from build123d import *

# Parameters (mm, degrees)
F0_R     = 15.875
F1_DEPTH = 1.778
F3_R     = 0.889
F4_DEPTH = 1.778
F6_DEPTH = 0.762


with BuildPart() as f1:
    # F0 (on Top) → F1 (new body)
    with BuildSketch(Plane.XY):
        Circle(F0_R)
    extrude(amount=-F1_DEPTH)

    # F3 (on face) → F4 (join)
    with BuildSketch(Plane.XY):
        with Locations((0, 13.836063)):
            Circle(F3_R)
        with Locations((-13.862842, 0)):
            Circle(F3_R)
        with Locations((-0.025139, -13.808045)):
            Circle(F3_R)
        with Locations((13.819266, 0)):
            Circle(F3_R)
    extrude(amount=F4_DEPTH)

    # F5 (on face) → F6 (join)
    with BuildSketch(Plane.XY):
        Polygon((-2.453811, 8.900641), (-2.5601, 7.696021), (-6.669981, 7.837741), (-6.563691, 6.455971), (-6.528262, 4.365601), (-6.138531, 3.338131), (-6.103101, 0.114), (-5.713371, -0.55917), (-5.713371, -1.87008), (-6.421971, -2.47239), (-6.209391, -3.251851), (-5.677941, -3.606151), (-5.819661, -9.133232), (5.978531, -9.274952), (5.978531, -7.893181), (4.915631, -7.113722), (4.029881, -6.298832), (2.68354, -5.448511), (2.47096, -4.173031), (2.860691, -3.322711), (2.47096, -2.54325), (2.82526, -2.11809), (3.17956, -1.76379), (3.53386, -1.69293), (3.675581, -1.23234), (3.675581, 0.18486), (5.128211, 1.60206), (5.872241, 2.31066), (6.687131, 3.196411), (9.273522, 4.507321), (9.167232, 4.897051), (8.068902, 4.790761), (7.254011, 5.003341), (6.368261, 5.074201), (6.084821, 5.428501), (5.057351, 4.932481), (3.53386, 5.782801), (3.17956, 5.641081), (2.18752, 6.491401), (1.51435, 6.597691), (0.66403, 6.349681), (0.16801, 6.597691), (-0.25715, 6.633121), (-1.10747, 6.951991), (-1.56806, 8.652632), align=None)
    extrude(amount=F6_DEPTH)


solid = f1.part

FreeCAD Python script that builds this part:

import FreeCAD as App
import Part
import Sketcher

V = App.Vector
Q = App.Units.Quantity

doc = App.newDocument("Part")
body = doc.addObject("PartDesign::Body", "Body")

# Sketch on XY plane
sketch1 = doc.addObject("Sketcher::SketchObject", "Sketch")
body.addObject(sketch1)
sketch1.AttachmentSupport = (doc.XY_Plane, [""])
sketch1.MapMode = "FlatFace"
sketch1.addGeometry(Part.Circle(V(0, 0, 0), V(0, 0, 1), 16), False)
sketch1.addConstraint(Sketcher.Constraint("Coincident", 0, 3, -1, 1))
sketch1.addConstraint(Sketcher.Constraint("Diameter", 0, Q("1.25 in")))
pad1 = doc.addObject("PartDesign::Pad", "Pad")
body.addObject(pad1)
pad1.Profile = sketch1
pad1.Length = Q("0.07 in")
pad1.Reversed = True

# Sketch on XY plane
sketch2 = doc.addObject("Sketcher::SketchObject", "Sketch001")
body.addObject(sketch2)
sketch2.AttachmentSupport = (doc.XY_Plane, [""])
sketch2.MapMode = "FlatFace"
sketch2.addGeometry(Part.Circle(V(0, 13.8, 0), V(0, 0, 1), 0.9), False)
sketch2.addGeometry(Part.Circle(V(-13.9, 0, 0), V(0, 0, 1), 0.9), False)
sketch2.addGeometry(Part.Circle(V(0, -13.8, 0), V(0, 0, 1), 0.9), False)
sketch2.addGeometry(Part.Circle(V(13.8, 0, 0), V(0, 0, 1), 0.9), False)
sketch2.addConstraint(Sketcher.Constraint("Equal", 0, 1))
sketch2.addConstraint(Sketcher.Constraint("Equal", 1, 2))
sketch2.addConstraint(Sketcher.Constraint("Equal", 2, 3))
sketch2.addConstraint(Sketcher.Constraint("PointOnObject", 0, 3, -2))
sketch2.addConstraint(Sketcher.Constraint("PointOnObject", 1, 3, -1))
sketch2.addConstraint(Sketcher.Constraint("PointOnObject", 3, 3, -1))
sketch2.addConstraint(Sketcher.Constraint("Diameter", 0, Q("0.07 in")))
sketch2.addConstraint(Sketcher.Constraint("DistanceX", 2, 3, -1, 1, 0.025139))
sketch2.addConstraint(Sketcher.Constraint("DistanceY", -1, 1, 0, 3, 13.836063))
sketch2.addConstraint(Sketcher.Constraint("DistanceX", 1, 3, -1, 1, 13.862842))
sketch2.addConstraint(Sketcher.Constraint("DistanceY", 2, 3, -1, 1, 13.808045))
sketch2.addConstraint(Sketcher.Constraint("DistanceX", -1, 1, 3, 3, 13.819266))
pad2 = doc.addObject("PartDesign::Pad", "Pad001")
body.addObject(pad2)
pad2.Profile = sketch2
pad2.Length = Q("0.07 in")

# Sketch on XY plane
sketch3 = doc.addObject("Sketcher::SketchObject", "Sketch002")
body.addObject(sketch3)
sketch3.AttachmentSupport = (doc.XY_Plane, [""])
sketch3.MapMode = "FlatFace"
sketch3.addGeometry(Part.LineSegment(V(-2.45, 8.9, 0), V(-2.56, 7.7, 0)), False)
sketch3.addGeometry(Part.LineSegment(V(-2.56, 7.7, 0), V(-6.67, 7.84, 0)), False)
sketch3.addGeometry(Part.LineSegment(V(-6.67, 7.84, 0), V(-6.56, 6.46, 0)), False)
sketch3.addGeometry(Part.LineSegment(V(-6.56, 6.46, 0), V(-6.53, 4.37, 0)), False)
sketch3.addGeometry(Part.LineSegment(V(-6.53, 4.37, 0), V(-6.14, 3.34, 0)), False)
sketch3.addGeometry(Part.LineSegment(V(-6.14, 3.34, 0), V(-6.1, 0.11, 0)), False)
sketch3.addGeometry(Part.LineSegment(V(-6.1, 0.11, 0), V(-5.71, -0.56, 0)), False)
sketch3.addGeometry(Part.LineSegment(V(-5.71, -0.56, 0), V(-5.71, -1.87, 0)), False)
sketch3.addGeometry(Part.LineSegment(V(-5.71, -1.87, 0), V(-6.42, -2.47, 0)), False)
sketch3.addGeometry(Part.LineSegment(V(-6.42, -2.47, 0), V(-6.21, -3.25, 0)), False)
sketch3.addGeometry(Part.LineSegment(V(-6.21, -3.25, 0), V(-5.68, -3.61, 0)), False)
sketch3.addGeometry(Part.LineSegment(V(-5.68, -3.61, 0), V(-5.82, -9.13, 0)), False)
sketch3.addGeometry(Part.LineSegment(V(-5.82, -9.13, 0), V(5.98, -9.27, 0)), False)
sketch3.addGeometry(Part.LineSegment(V(5.98, -9.27, 0), V(5.98, -7.89, 0)), False)
sketch3.addGeometry(Part.LineSegment(V(5.98, -7.89, 0), V(4.92, -7.11, 0)), False)
sketch3.addGeometry(Part.LineSegment(V(4.92, -7.11, 0), V(4.03, -6.3, 0)), False)
sketch3.addGeometry(Part.LineSegment(V(4.03, -6.3, 0), V(2.68, -5.45, 0)), False)
sketch3.addGeometry(Part.LineSegment(V(2.68, -5.45, 0), V(2.47, -4.17, 0)), False)
sketch3.addGeometry(Part.LineSegment(V(2.47, -4.17, 0), V(2.86, -3.32, 0)), False)
sketch3.addGeometry(Part.LineSegment(V(2.86, -3.32, 0), V(2.47, -2.54, 0)), False)
sketch3.addGeometry(Part.LineSegment(V(2.47, -2.54, 0), V(2.83, -2.12, 0)), False)
sketch3.addGeometry(Part.LineSegment(V(2.83, -2.12, 0), V(3.18, -1.76, 0)), False)
sketch3.addGeometry(Part.LineSegment(V(3.18, -1.76, 0), V(3.53, -1.69, 0)), False)
sketch3.addGeometry(Part.LineSegment(V(3.53, -1.69, 0), V(3.68, -1.23, 0)), False)
sketch3.addGeometry(Part.LineSegment(V(3.68, -1.23, 0), V(3.68, 0.18, 0)), False)
sketch3.addGeometry(Part.LineSegment(V(3.68, 0.18, 0), V(5.13, 1.6, 0)), False)
sketch3.addGeometry(Part.LineSegment(V(5.13, 1.6, 0), V(5.87, 2.31, 0)), False)
sketch3.addGeometry(Part.LineSegment(V(5.87, 2.31, 0), V(6.69, 3.2, 0)), False)
sketch3.addGeometry(Part.LineSegment(V(6.69, 3.2, 0), V(9.27, 4.51, 0)), False)
sketch3.addGeometry(Part.LineSegment(V(9.27, 4.51, 0), V(9.17, 4.9, 0)), False)
sketch3.addGeometry(Part.LineSegment(V(9.17, 4.9, 0), V(8.07, 4.79, 0)), False)
sketch3.addGeometry(Part.LineSegment(V(8.07, 4.79, 0), V(7.25, 5, 0)), False)
sketch3.addGeometry(Part.LineSegment(V(7.25, 5, 0), V(6.37, 5.07, 0)), False)
sketch3.addGeometry(Part.LineSegment(V(6.37, 5.07, 0), V(6.08, 5.43, 0)), False)
sketch3.addGeometry(Part.LineSegment(V(6.08, 5.43, 0), V(5.06, 4.93, 0)), False)
sketch3.addGeometry(Part.LineSegment(V(5.06, 4.93, 0), V(3.53, 5.78, 0)), False)
sketch3.addGeometry(Part.LineSegment(V(3.53, 5.78, 0), V(3.18, 5.64, 0)), False)
sketch3.addGeometry(Part.LineSegment(V(3.18, 5.64, 0), V(2.19, 6.49, 0)), False)
sketch3.addGeometry(Part.LineSegment(V(2.19, 6.49, 0), V(1.51, 6.6, 0)), False)
sketch3.addGeometry(Part.LineSegment(V(1.51, 6.6, 0), V(0.66, 6.35, 0)), False)
sketch3.addGeometry(Part.LineSegment(V(0.66, 6.35, 0), V(0.17, 6.6, 0)), False)
sketch3.addGeometry(Part.LineSegment(V(0.17, 6.6, 0), V(-0.26, 6.63, 0)), False)
sketch3.addGeometry(Part.LineSegment(V(-0.26, 6.63, 0), V(-1.11, 6.95, 0)), False)
sketch3.addGeometry(Part.LineSegment(V(-1.11, 6.95, 0), V(-1.57, 8.65, 0)), False)
sketch3.addGeometry(Part.LineSegment(V(-1.57, 8.65, 0), V(-2.45, 8.9, 0)), False)
sketch3.addConstraint(Sketcher.Constraint("Coincident", 0, 2, 1, 1))
sketch3.addConstraint(Sketcher.Constraint("Coincident", 1, 2, 2, 1))
sketch3.addConstraint(Sketcher.Constraint("Coincident", 2, 2, 3, 1))
sketch3.addConstraint(Sketcher.Constraint("Coincident", 3, 2, 4, 1))
sketch3.addConstraint(Sketcher.Constraint("Coincident", 4, 2, 5, 1))
sketch3.addConstraint(Sketcher.Constraint("Coincident", 5, 2, 6, 1))
sketch3.addConstraint(Sketcher.Constraint("Coincident", 6, 2, 7, 1))
sketch3.addConstraint(Sketcher.Constraint("Coincident", 7, 2, 8, 1))
sketch3.addConstraint(Sketcher.Constraint("Coincident", 8, 2, 9, 1))
sketch3.addConstraint(Sketcher.Constraint("Coincident", 9, 2, 10, 1))
sketch3.addConstraint(Sketcher.Constraint("Coincident", 10, 2, 11, 1))
sketch3.addConstraint(Sketcher.Constraint("Coincident", 11, 2, 12, 1))
sketch3.addConstraint(Sketcher.Constraint("Coincident", 12, 2, 13, 1))
sketch3.addConstraint(Sketcher.Constraint("Coincident", 13, 2, 14, 1))
sketch3.addConstraint(Sketcher.Constraint("Coincident", 14, 2, 15, 1))
sketch3.addConstraint(Sketcher.Constraint("Coincident", 15, 2, 16, 1))
sketch3.addConstraint(Sketcher.Constraint("Coincident", 16, 2, 17, 1))
sketch3.addConstraint(Sketcher.Constraint("Coincident", 17, 2, 18, 1))
sketch3.addConstraint(Sketcher.Constraint("Coincident", 18, 2, 19, 1))
sketch3.addConstraint(Sketcher.Constraint("Coincident", 19, 2, 20, 1))
sketch3.addConstraint(Sketcher.Constraint("Coincident", 20, 2, 21, 1))
sketch3.addConstraint(Sketcher.Constraint("Coincident", 21, 2, 22, 1))
sketch3.addConstraint(Sketcher.Constraint("Coincident", 22, 2, 23, 1))
sketch3.addConstraint(Sketcher.Constraint("Coincident", 23, 2, 24, 1))
sketch3.addConstraint(Sketcher.Constraint("Coincident", 24, 2, 25, 1))
sketch3.addConstraint(Sketcher.Constraint("Coincident", 25, 2, 26, 1))
sketch3.addConstraint(Sketcher.Constraint("Coincident", 26, 2, 27, 1))
sketch3.addConstraint(Sketcher.Constraint("Coincident", 27, 2, 28, 1))
sketch3.addConstraint(Sketcher.Constraint("Coincident", 28, 2, 29, 1))
sketch3.addConstraint(Sketcher.Constraint("Coincident", 29, 2, 30, 1))
sketch3.addConstraint(Sketcher.Constraint("Coincident", 30, 2, 31, 1))
sketch3.addConstraint(Sketcher.Constraint("Coincident", 31, 2, 32, 1))
sketch3.addConstraint(Sketcher.Constraint("Coincident", 32, 2, 33, 1))
sketch3.addConstraint(Sketcher.Constraint("Coincident", 33, 2, 34, 1))
sketch3.addConstraint(Sketcher.Constraint("Coincident", 34, 2, 35, 1))
sketch3.addConstraint(Sketcher.Constraint("Coincident", 35, 2, 36, 1))
sketch3.addConstraint(Sketcher.Constraint("Coincident", 36, 2, 37, 1))
sketch3.addConstraint(Sketcher.Constraint("Coincident", 37, 2, 38, 1))
sketch3.addConstraint(Sketcher.Constraint("Coincident", 38, 2, 39, 1))
sketch3.addConstraint(Sketcher.Constraint("Coincident", 39, 2, 40, 1))
sketch3.addConstraint(Sketcher.Constraint("Coincident", 40, 2, 41, 1))
sketch3.addConstraint(Sketcher.Constraint("Coincident", 41, 2, 42, 1))
sketch3.addConstraint(Sketcher.Constraint("Coincident", 42, 2, 43, 1))
sketch3.addConstraint(Sketcher.Constraint("Coincident", 43, 2, 44, 1))
sketch3.addConstraint(Sketcher.Constraint("Coincident", 44, 2, 0, 1))
sketch3.addConstraint(Sketcher.Constraint("Vertical", 7))
sketch3.addConstraint(Sketcher.Constraint("Vertical", 13))
sketch3.addConstraint(Sketcher.Constraint("Vertical", 24))
sketch3.addConstraint(Sketcher.Constraint("Perpendicular", 15, 27))
sketch3.addConstraint(Sketcher.Constraint("Parallel", 9, 29))
sketch3.addConstraint(Sketcher.Constraint("Horizontal", 38, 2, 40, 2))
sketch3.addConstraint(Sketcher.Constraint("Vertical", 17, 2, 19, 2))
sketch3.addConstraint(Sketcher.Constraint("Vertical", 22, 2, 35, 2))
sketch3.addConstraint(Sketcher.Constraint("Vertical", 21, 2, 36, 2))
sketch3.addConstraint(Sketcher.Constraint("Equal", 15, 27))
sketch3.addConstraint(Sketcher.Constraint("Angle", 21, Q("45 deg")))
sketch3.addConstraint(Sketcher.Constraint("DistanceY", 24, 1, 24, 2, 1.4172))
sketch3.addConstraint(Sketcher.Constraint("Distance", 0, 1.2093))
sketch3.addConstraint(Sketcher.Constraint("Distance", 4, 1.098902))
sketch3.addConstraint(Sketcher.Constraint("Distance", 23, 0.4819))
sketch3.addConstraint(Sketcher.Constraint("DistanceY", 7, 2, 7, 1, 1.31091))
sketch3.addConstraint(Sketcher.Constraint("DistanceY", 13, 1, 13, 2, 1.381771))
sketch3.addConstraint(Sketcher.Constraint("DistanceX", 0, 2, -1, 1, 2.5601))
sketch3.addConstraint(Sketcher.Constraint("DistanceY", -1, 1, 3, 2, 4.365601))
sketch3.addConstraint(Sketcher.Constraint("DistanceX", 5, 2, -1, 1, 6.103101))
sketch3.addConstraint(Sketcher.Constraint("DistanceY", -1, 1, 5, 2, 0.114))
sketch3.addConstraint(Sketcher.Constraint("DistanceY", -1, 1, 32, 2, 5.074201))
sketch3.addConstraint(Sketcher.Constraint("DistanceY", -1, 1, 33, 2, 5.428501))
sketch3.addConstraint(Sketcher.Constraint("DistanceY", -1, 1, 35, 2, 5.782801))
sketch3.addConstraint(Sketcher.Constraint("DistanceY", -1, 1, 37, 2, 6.491401))
sketch3.addConstraint(Sketcher.Constraint("DistanceY", 6, 2, 4, 2, 3.897301))
sketch3.addConstraint(Sketcher.Constraint("DistanceX", 8, 2, 7, 2, 0.7086))
sketch3.addConstraint(Sketcher.Constraint("DistanceY", 10, 2, 9, 2, 0.3543))
sketch3.addConstraint(Sketcher.Constraint("DistanceY", 12, 2, 10, 2, 5.668801))
sketch3.addConstraint(Sketcher.Constraint("DistanceY", 13, 2, 7, 2, 6.023101))
sketch3.addConstraint(Sketcher.Constraint("DistanceX", 14, 2, 13, 2, 1.0629))
sketch3.addConstraint(Sketcher.Constraint("DistanceY", 11, 2, 15, 2, 2.8344))
sketch3.addConstraint(Sketcher.Constraint("DistanceY", 15, 2, 17, 2, 2.125801))
sketch3.addConstraint(Sketcher.Constraint("DistanceY", 16, 2, 18, 2, 2.1258))
sketch3.addConstraint(Sketcher.Constraint("DistanceX", 19, 2, 20, 2, 0.3543))
sketch3.addConstraint(Sketcher.Constraint("DistanceX", 20, 2, 21, 2, 0.3543))
sketch3.addConstraint(Sketcher.Constraint("DistanceX", 21, 2, 22, 2, 0.3543))
sketch3.addConstraint(Sketcher.Constraint("DistanceY", 17, 2, 22, 2, 2.480101))
sketch3.addConstraint(Sketcher.Constraint("DistanceY", 24, 2, 25, 2, 1.4172))
sketch3.addConstraint(Sketcher.Constraint("DistanceY", 25, 2, 26, 2, 0.7086))
sketch3.addConstraint(Sketcher.Constraint("DistanceX", 27, 2, 29, 2, 2.480101))
sketch3.addConstraint(Sketcher.Constraint("DistanceY", 26, 2, 30, 2, 2.480101))
sketch3.addConstraint(Sketcher.Constraint("DistanceX", 35, 2, 32, 2, 2.834401))
sketch3.addConstraint(Sketcher.Constraint("DistanceY", 34, 2, 36, 2, 0.7086))
sketch3.addConstraint(Sketcher.Constraint("DistanceX", 37, 2, 33, 2, 3.897301))
sketch3.addConstraint(Sketcher.Constraint("DistanceX", 38, 2, 34, 2, 3.543001))
sketch3.addConstraint(Sketcher.Constraint("DistanceY", 36, 2, 39, 2, 0.7086))
sketch3.addConstraint(Sketcher.Constraint("DistanceX", 41, 2, 38, 2, 1.7715))
sketch3.addConstraint(Sketcher.Constraint("DistanceY", 41, 2, 0, 2, 1.0629))
sketch3.addConstraint(Sketcher.Constraint("DistanceY", 40, 2, 42, 2, 0.3543))
sketch3.addConstraint(Sketcher.Constraint("DistanceX", 42, 2, 39, 2, 1.7715))
sketch3.addConstraint(Sketcher.Constraint("Distance", 3, 2.09067))
sketch3.addConstraint(Sketcher.Constraint("Distance", 9, 0.807929))
sketch3.addConstraint(Sketcher.Constraint("Distance", 14, 1.318072))
sketch3.addConstraint(Sketcher.Constraint("Distance", 16, 1.592382))
sketch3.addConstraint(Sketcher.Constraint("Distance", 18, 0.935379))
sketch3.addConstraint(Sketcher.Constraint("Distance", 25, 2.029431))
sketch3.addConstraint(Sketcher.Constraint("Distance", 26, 1.02747))
sketch3.addConstraint(Sketcher.Constraint("Distance", 27, 1.203578))
sketch3.addConstraint(Sketcher.Constraint("Distance", 28, 2.899639))
sketch3.addConstraint(Sketcher.Constraint("Distance", 30, 1.103461))
sketch3.addConstraint(Sketcher.Constraint("Distance", 32, 0.88858))
sketch3.addConstraint(Sketcher.Constraint("Distance", 38, 0.68151))
sketch3.addConstraint(Sketcher.Constraint("Distance", 39, 0.88575))
sketch3.addConstraint(Sketcher.Constraint("Distance", 43, 1.761909))
sketch3.addConstraint(Sketcher.Constraint("DistanceY", -1, 1, 0, 2, 7.696021))
sketch3.addConstraint(Sketcher.Constraint("DistanceX", 1, 2, -1, 1, 6.669981))
sketch3.addConstraint(Sketcher.Constraint("DistanceY", -1, 1, 1, 2, 7.837741))
sketch3.addConstraint(Sketcher.Constraint("DistanceX", 2, 2, -1, 1, 6.563691))
sketch3.addConstraint(Sketcher.Constraint("DistanceY", -1, 1, 2, 2, 6.455971))
sketch3.addConstraint(Sketcher.Constraint("DistanceX", 4, 2, -1, 1, 6.138531))
sketch3.addConstraint(Sketcher.Constraint("DistanceX", 6, 2, -1, 1, 5.713371))
sketch3.addConstraint(Sketcher.Constraint("DistanceY", 8, 2, -1, 1, 2.47239))
sketch3.addConstraint(Sketcher.Constraint("DistanceX", 10, 2, -1, 1, 5.677941))
sketch3.addConstraint(Sketcher.Constraint("DistanceX", 11, 2, -1, 1, 5.819661))
sketch3.addConstraint(Sketcher.Constraint("DistanceX", -1, 1, 12, 2, 5.978531))
sketch3.addConstraint(Sketcher.Constraint("DistanceX", -1, 1, 15, 2, 4.029881))
sketch3.addConstraint(Sketcher.Constraint("DistanceX", -1, 1, 16, 2, 2.68354))
sketch3.addConstraint(Sketcher.Constraint("DistanceX", -1, 1, 17, 2, 2.47096))
sketch3.addConstraint(Sketcher.Constraint("DistanceY", 19, 2, -1, 1, 2.54325))
sketch3.addConstraint(Sketcher.Constraint("DistanceY", 20, 2, -1, 1, 2.11809))
sketch3.addConstraint(Sketcher.Constraint("DistanceX", -1, 1, 23, 2, 3.675581))
sketch3.addConstraint(Sketcher.Constraint("DistanceY", -1, 1, 28, 2, 4.507321))
sketch3.addConstraint(Sketcher.Constraint("DistanceX", -1, 1, 31, 2, 7.254011))
sketch3.addConstraint(Sketcher.Constraint("DistanceX", -1, 1, 33, 2, 6.084821))
sketch3.addConstraint(Sketcher.Constraint("DistanceX", -1, 1, 34, 2, 5.057351))
sketch3.addConstraint(Sketcher.Constraint("DistanceY", -1, 1, 34, 2, 4.932481))
sketch3.addConstraint(Sketcher.Constraint("DistanceX", -1, 1, 40, 2, 0.16801))
sketch3.addConstraint(Sketcher.Constraint("DistanceX", 43, 2, -1, 1, 1.56806))
sketch3.addConstraint(Sketcher.Constraint("DistanceX", 44, 2, -1, 1, 2.453811))
pad3 = doc.addObject("PartDesign::Pad", "Pad002")
body.addObject(pad3)
pad3.Profile = sketch3
pad3.Length = Q("0.03 in")

doc.recompute()
